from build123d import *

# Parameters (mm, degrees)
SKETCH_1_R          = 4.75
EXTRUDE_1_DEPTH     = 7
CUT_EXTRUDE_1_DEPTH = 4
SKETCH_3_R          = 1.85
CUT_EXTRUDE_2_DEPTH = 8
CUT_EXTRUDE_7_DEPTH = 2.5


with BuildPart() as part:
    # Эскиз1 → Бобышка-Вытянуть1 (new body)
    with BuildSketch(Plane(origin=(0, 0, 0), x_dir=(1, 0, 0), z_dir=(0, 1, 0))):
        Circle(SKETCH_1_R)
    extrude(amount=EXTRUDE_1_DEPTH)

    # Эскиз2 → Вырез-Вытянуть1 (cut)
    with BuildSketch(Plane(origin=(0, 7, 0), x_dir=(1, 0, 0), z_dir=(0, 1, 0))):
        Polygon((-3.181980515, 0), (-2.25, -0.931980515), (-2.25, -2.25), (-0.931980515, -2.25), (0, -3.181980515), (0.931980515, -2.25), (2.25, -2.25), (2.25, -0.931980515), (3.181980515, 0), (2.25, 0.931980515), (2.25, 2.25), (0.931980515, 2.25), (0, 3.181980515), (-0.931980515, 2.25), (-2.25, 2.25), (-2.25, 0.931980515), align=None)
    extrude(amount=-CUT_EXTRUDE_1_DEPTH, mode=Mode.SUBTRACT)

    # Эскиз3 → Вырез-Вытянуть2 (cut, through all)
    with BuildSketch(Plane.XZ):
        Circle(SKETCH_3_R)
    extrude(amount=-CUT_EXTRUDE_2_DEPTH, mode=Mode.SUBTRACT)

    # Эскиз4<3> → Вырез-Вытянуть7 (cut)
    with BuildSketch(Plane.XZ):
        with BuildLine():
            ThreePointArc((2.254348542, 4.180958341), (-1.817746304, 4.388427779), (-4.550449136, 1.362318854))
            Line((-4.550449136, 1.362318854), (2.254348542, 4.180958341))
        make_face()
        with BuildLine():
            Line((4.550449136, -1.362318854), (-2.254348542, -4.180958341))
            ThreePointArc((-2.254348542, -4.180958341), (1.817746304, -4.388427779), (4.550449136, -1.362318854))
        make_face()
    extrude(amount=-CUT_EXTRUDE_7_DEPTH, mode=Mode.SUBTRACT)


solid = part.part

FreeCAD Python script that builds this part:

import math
import FreeCAD as App
import Part
import Sketcher
from FreeCAD import Vector
Q = App.Units.Quantity

doc = App.newDocument("Part")
body = doc.addObject("PartDesign::Body", "Body")

# Sketch on XZ plane
sketch1 = body.newObject("Sketcher::SketchObject", "Sketch")
sketch1.AttachmentSupport = (doc.getObject("XZ_Plane"), [""])
sketch1.MapMode = "FlatFace"
sketch1.addGeometry(Part.Circle(Vector(0, 0, 0), Vector(0, 0, 1), 4.8), False)
sketch1.addConstraint(Sketcher.Constraint("Coincident", 0, 3, -1, 1))
sketch1.addConstraint(Sketcher.Constraint("Diameter", 0, 9.5))
pad1 = body.newObject("PartDesign::Pad", "Pad")
pad1.Profile = sketch1
pad1.Length = 7
pad1.Reversed = True

# Sketch on XZ plane
sketch2 = body.newObject("Sketcher::SketchObject", "Sketch001")
sketch2.AttachmentSupport = (doc.getObject("XZ_Plane"), [""])
sketch2.MapMode = "FlatFace"
sketch2.AttachmentOffset = App.Placement(Vector(0, 0, -7), App.Rotation())
sketch2.addGeometry(Part.LineSegment(Vector(-3.2, 0, 0), Vector(-2.2, 0.9, 0)), False)
sketch2.addGeometry(Part.LineSegment(Vector(-2.2, 0.9, 0), Vector(-2.2, 2.2, 0)), False)
sketch2.addGeometry(Part.LineSegment(Vector(-2.2, 2.2, 0), Vector(-0.9, 2.2, 0)), False)
sketch2.addGeometry(Part.LineSegment(Vector(-0.9, 2.2, 0), Vector(0, 3.2, 0)), False)
sketch2.addGeometry(Part.LineSegment(Vector(0, 3.2, 0), Vector(0.9, 2.2, 0)), False)
sketch2.addGeometry(Part.LineSegment(Vector(0.9, 2.2, 0), Vector(2.2, 2.2, 0)), False)
sketch2.addGeometry(Part.LineSegment(Vector(2.2, 2.2, 0), Vector(2.2, 0.9, 0)), False)
sketch2.addGeometry(Part.LineSegment(Vector(2.2, 0.9, 0), Vector(3.2, 0, 0)), False)
sketch2.addGeometry(Part.LineSegment(Vector(3.2, 0, 0), Vector(2.2, -0.9, 0)), False)
sketch2.addGeometry(Part.LineSegment(Vector(2.2, -0.9, 0), Vector(2.2, -2.2, 0)), False)
sketch2.addGeometry(Part.LineSegment(Vector(2.2, -2.2, 0), Vector(0.9, -2.2, 0)), False)
sketch2.addGeometry(Part.LineSegment(Vector(0.9, -2.2, 0), Vector(0, -3.2, 0)), False)
sketch2.addGeometry(Part.LineSegment(Vector(0, -3.2, 0), Vector(-0.9, -2.2, 0)), False)
sketch2.addGeometry(Part.LineSegment(Vector(-0.9, -2.2, 0), Vector(-2.2, -2.2, 0)), False)
sketch2.addGeometry(Part.LineSegment(Vector(-2.2, -2.2, 0), Vector(-2.2, -0.9, 0)), False)
sketch2.addGeometry(Part.LineSegment(Vector(-2.2, -0.9, 0), Vector(-3.2, 0, 0)), False)
sketch2.addConstraint(Sketcher.Constraint("Coincident", 0, 2, 1, 1))
sketch2.addConstraint(Sketcher.Constraint("Coincident", 1, 2, 2, 1))
sketch2.addConstraint(Sketcher.Constraint("Coincident", 2, 2, 3, 1))
sketch2.addConstraint(Sketcher.Constraint("Coincident", 3, 2, 4, 1))
sketch2.addConstraint(Sketcher.Constraint("Coincident", 4, 2, 5, 1))
sketch2.addConstraint(Sketcher.Constraint("Coincident", 5, 2, 6, 1))
sketch2.addConstraint(Sketcher.Constraint("Coincident", 6, 2, 7, 1))
sketch2.addConstraint(Sketcher.Constraint("Coincident", 7, 2, 8, 1))
sketch2.addConstraint(Sketcher.Constraint("Coincident", 8, 2, 9, 1))
sketch2.addConstraint(Sketcher.Constraint("Coincident", 9, 2, 10, 1))
sketch2.addConstraint(Sketcher.Constraint("Coincident", 10, 2, 11, 1))
sketch2.addConstraint(Sketcher.Constraint("Coincident", 11, 2, 12, 1))
sketch2.addConstraint(Sketcher.Constraint("Coincident", 12, 2, 13, 1))
sketch2.addConstraint(Sketcher.Constraint("Coincident", 13, 2, 14, 1))
sketch2.addConstraint(Sketcher.Constraint("Coincident", 14, 2, 15, 1))
sketch2.addConstraint(Sketcher.Constraint("Coincident", 15, 2, 0, 1))
sketch2.addConstraint(Sketcher.Constraint("Vertical", 1))
sketch2.addConstraint(Sketcher.Constraint("Horizontal", 2))
sketch2.addConstraint(Sketcher.Constraint("Horizontal", 5))
sketch2.addConstraint(Sketcher.Constraint("Vertical", 6))
sketch2.addConstraint(Sketcher.Constraint("Vertical", 9))
sketch2.addConstraint(Sketcher.Constraint("Horizontal", 10))
sketch2.addConstraint(Sketcher.Constraint("Horizontal", 13))
sketch2.addConstraint(Sketcher.Constraint("Vertical", 14))
sketch2.addConstraint(Sketcher.Constraint("Symmetric", 0, 2, 8, 2, -1, 1))
sketch2.addConstraint(Sketcher.Constraint("Symmetric", 2, 2, 10, 2, -1, 1))
sketch2.addConstraint(Sketcher.Constraint("Symmetric", 3, 2, 11, 2, -1, 1))
sketch2.addConstraint(Sketcher.Constraint("Symmetric", 4, 2, 12, 2, -1, 1))
sketch2.addConstraint(Sketcher.Constraint("Symmetric", 6, 2, 14, 2, -1, 1))
sketch2.addConstraint(Sketcher.Constraint("Symmetric", 7, 2, 15, 2, -1, 1))
sketch2.addConstraint(Sketcher.Constraint("Symmetric", 2, 2, 4, 2, -2))
sketch2.addConstraint(Sketcher.Constraint("Symmetric", 0, 2, 6, 2, -2))
sketch2.addConstraint(Sketcher.Constraint("PointOnObject", 3, 2, -2))
sketch2.addConstraint(Sketcher.Constraint("PointOnObject", 7, 2, -1))
sketch2.addConstraint(Sketcher.Constraint("Parallel", 0, 3))
sketch2.addConstraint(Sketcher.Constraint("Perpendicular", 3, 4))
sketch2.addConstraint(Sketcher.Constraint("Equal", 13, 1))
sketch2.addConstraint(Sketcher.Constraint("Equal", 0, 3))
sketch2.addConstraint(Sketcher.Constraint("DistanceX", 1, 2, 5, 2, 4.5))
sketch2.addConstraint(Sketcher.Constraint("DistanceX", 2, 1, 2, 2, 1.318019))
pocket1 = body.newObject("PartDesign::Pocket", "Pocket")
pocket1.Profile = sketch2
pocket1.Length = 4
pocket1.Reversed = True

# Sketch on XZ plane
sketch3 = body.newObject("Sketcher::SketchObject", "Sketch002")
sketch3.AttachmentSupport = (doc.getObject("XZ_Plane"), [""])
sketch3.MapMode = "FlatFace"
sketch3.addGeometry(Part.Circle(Vector(0, 0, 0), Vector(0, 0, 1), 1.9), False)
sketch3.addConstraint(Sketcher.Constraint("Coincident", 0, 3, -1, 1))
sketch3.addConstraint(Sketcher.Constraint("Diameter", 0, 3.7))
pocket2 = body.newObject("PartDesign::Pocket", "Pocket001")
pocket2.Profile = sketch3
pocket2.Type = "ThroughAll"

# Sketch on XZ plane
sketch4 = body.newObject("Sketcher::SketchObject", "Sketch003")
sketch4.AttachmentSupport = (doc.getObject("XZ_Plane"), [""])
sketch4.MapMode = "FlatFace"
sketch4.addGeometry(Part.ArcOfCircle(Part.Circle(Vector(0, 0, 0), Vector(0, 0, 1), 4.8), math.radians(62), math.radians(163)), False)
sketch4.addGeometry(Part.LineSegment(Vector(-4.6, 1.4, 0), Vector(2.3, 4.2, 0)), False)
sketch4.addGeometry(Part.LineSegment(Vector(4.6, -1.4, 0), Vector(-2.3, -4.2, 0)), False)
sketch4.addGeometry(Part.ArcOfCircle(Part.Circle(Vector(0, 0, 0), Vector(0, 0, 1), 4.8), math.radians(-118), math.radians(-17)), False)
sketch4.addConstraint(Sketcher.Constraint("Coincident", 0, 1, 1, 2))
sketch4.addConstraint(Sketcher.Constraint("Coincident", 1, 1, 0, 2))
sketch4.addConstraint(Sketcher.Constraint("Coincident", 2, 1, 3, 2))
sketch4.addConstraint(Sketcher.Constraint("Coincident", 3, 1, 2, 2))
sketch4.addConstraint(Sketcher.Constraint("Coincident", 0, 3, -1, 1))
sketch4.addConstraint(Sketcher.Constraint("Coincident", 3, 3, -1, 1))
sketch4.addConstraint(Sketcher.Constraint("Equal", 0, 3))
sketch4.addConstraint(Sketcher.Constraint("Parallel", 1, 2))
sketch4.addConstraint(Sketcher.Constraint("Equal", 1, 2))
sketch4.addConstraint(Sketcher.Constraint("Radius", 0, 4.75))
sketch4.addConstraint(Sketcher.Constraint("Angle", 1, Q("22.5 deg")))
sketch4.addConstraint(Sketcher.Constraint("DistanceX", 0, 1, 2, 1, 2.296101))
pocket3 = body.newObject("PartDesign::Pocket", "Pocket002")
pocket3.Profile = sketch4
pocket3.Length = 2.5

doc.recompute()
